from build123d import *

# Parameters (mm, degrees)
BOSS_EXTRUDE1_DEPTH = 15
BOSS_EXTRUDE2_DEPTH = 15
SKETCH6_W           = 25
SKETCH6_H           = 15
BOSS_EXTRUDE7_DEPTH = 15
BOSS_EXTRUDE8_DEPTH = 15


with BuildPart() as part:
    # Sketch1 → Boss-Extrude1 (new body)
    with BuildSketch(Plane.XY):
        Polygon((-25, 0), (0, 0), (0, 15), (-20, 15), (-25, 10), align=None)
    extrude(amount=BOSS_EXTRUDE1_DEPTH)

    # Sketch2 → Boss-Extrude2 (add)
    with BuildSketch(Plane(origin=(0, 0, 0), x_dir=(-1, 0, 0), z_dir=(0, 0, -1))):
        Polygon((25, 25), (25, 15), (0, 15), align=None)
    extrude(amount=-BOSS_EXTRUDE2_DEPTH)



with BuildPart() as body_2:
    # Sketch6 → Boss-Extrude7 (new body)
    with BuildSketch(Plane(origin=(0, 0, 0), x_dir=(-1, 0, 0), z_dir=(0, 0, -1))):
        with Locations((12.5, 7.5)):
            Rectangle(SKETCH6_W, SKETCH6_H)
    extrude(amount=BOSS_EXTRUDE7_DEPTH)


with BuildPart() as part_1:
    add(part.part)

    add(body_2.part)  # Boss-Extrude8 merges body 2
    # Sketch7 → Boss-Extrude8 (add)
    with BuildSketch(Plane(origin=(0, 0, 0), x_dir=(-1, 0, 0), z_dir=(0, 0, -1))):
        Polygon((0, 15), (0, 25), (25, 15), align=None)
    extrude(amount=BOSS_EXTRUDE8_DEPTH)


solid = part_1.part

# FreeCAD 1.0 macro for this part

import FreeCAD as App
import Part
import Sketcher
from FreeCAD import Vector


def add_polygon(sketch, points):
    """Adds a closed chain of lines whose ends are joined by coincident constraints."""
    first, n = sketch.GeometryCount, len(points)
    for a, b in zip(points, points[1:] + points[:1]):
        sketch.addGeometry(Part.LineSegment(App.Vector(*a, 0), App.Vector(*b, 0)), False)
    for i in range(n):
        sketch.addConstraint(Sketcher.Constraint("Coincident", first + i, 2, first + (i + 1) % n, 1))

doc = App.newDocument("Part")
params = doc.addObject("Spreadsheet::Sheet", "Params")
for row, (alias, value) in enumerate([
    ("sketch1_width", "25 mm"),
    ("sketch1_width2", "20 mm"),
    ("sketch1_height", "15 mm"),
    ("sketch1_height2", "10 mm"),
    ("pad1_length", "15 mm"),
    ("sketch2_width", "25 mm"),
    ("sketch2_height", "10 mm"),
    ("pad2_length", "15 mm"),
    ("sketch3_width", "25 mm"),
    ("sketch3_height", "15 mm"),
    ("pad3_length", "15 mm"),
    ("sketch4_width", "25 mm"),
    ("sketch4_height", "10 mm"),
    ("pad4_length", "15 mm"),
], start=1):
    params.set(f"A{row}", alias)
    params.set(f"B{row}", "=" + value)
    params.setAlias(f"B{row}", alias)

body = doc.addObject("PartDesign::Body", "Body")

# Sketch on XY plane
sketch1 = body.newObject("Sketcher::SketchObject", "Sketch")
sketch1.AttachmentSupport = (doc.getObject("XY_Plane"), [""])
sketch1.MapMode = "FlatFace"
add_polygon(sketch1, [(-25, 0), (0, 0), (0, 15), (-20, 15), (-25, 10)])  # lines 0-4
sketch1.addConstraint([
    Sketcher.Constraint("Horizontal", 0),
    Sketcher.Constraint("Vertical", 1),
    Sketcher.Constraint("Horizontal", 2),
    Sketcher.Constraint("Vertical", 4),
    Sketcher.Constraint("Coincident", 0, 2, -1, 1),
    Sketcher.Constraint("DistanceX", 0, 1, 0, 2, 25.0),
    Sketcher.Constraint("DistanceX", 2, 2, 2, 1, 20.0),
    Sketcher.Constraint("DistanceY", 1, 1, 1, 2, 15.0),
    Sketcher.Constraint("DistanceY", 4, 2, 4, 1, 10.0),
])
sketch1.setExpression("Constraints[10]", "Params.sketch1_width")
sketch1.setExpression("Constraints[11]", "Params.sketch1_width2")
sketch1.setExpression("Constraints[12]", "Params.sketch1_height")
sketch1.setExpression("Constraints[13]", "Params.sketch1_height2")
pad1 = body.newObject("PartDesign::Pad", "Pad")
pad1.Profile = sketch1
pad1.setExpression("Length", "Params.pad1_length")

# Sketch on XY plane
sketch2 = body.newObject("Sketcher::SketchObject", "Sketch001")
sketch2.AttachmentSupport = (doc.getObject("XY_Plane"), [""])
sketch2.MapMode = "FlatFace"
add_polygon(sketch2, [(-25, 15), (-25, 25), (0, 15)])  # lines 0-2
sketch2.addConstraint([
    Sketcher.Constraint("Vertical", 0),
    Sketcher.Constraint("Horizontal", 2),
    Sketcher.Constraint("PointOnObject", 1, 2, -2),
    Sketcher.Constraint("DistanceX", 2, 2, 2, 1, 25.0),
    Sketcher.Constraint("DistanceY", 0, 1, 0, 2, 10.0),
    Sketcher.Constraint("DistanceY", -1, 1, 0, 2, 25.0),
])
sketch2.setExpression("Constraints[6]", "Params.sketch2_width")
sketch2.setExpression("Constraints[7]", "Params.sketch2_height")
pad2 = body.newObject("PartDesign::Pad", "Pad001")
pad2.Profile = sketch2
pad2.setExpression("Length", "Params.pad2_length")
body2 = doc.addObject("PartDesign::Body", "Body001")

# Sketch on XY plane
sketch3 = body2.newObject("Sketcher::SketchObject", "Sketch002")
sketch3.AttachmentSupport = (doc.getObject("XY_Plane001"), [""])
sketch3.MapMode = "FlatFace"
add_polygon(sketch3, [(0, 15), (0, 0), (-25, 0), (-25, 15)])  # lines 0-3
sketch3.addConstraint([
    Sketcher.Constraint("Vertical", 0),
    Sketcher.Constraint("Horizontal", 1),
    Sketcher.Constraint("Vertical", 2),
    Sketcher.Constraint("Horizontal", 3),
    Sketcher.Constraint("Coincident", 0, 2, -1, 1),
    Sketcher.Constraint("DistanceX", 1, 2, 1, 1, 25.0),
    Sketcher.Constraint("DistanceY", 0, 2, 0, 1, 15.0),
])
sketch3.setExpression("Constraints[9]", "Params.sketch3_width")
sketch3.setExpression("Constraints[10]", "Params.sketch3_height")
pad3 = body2.newObject("PartDesign::Pad", "Pad002")
pad3.Profile = sketch3
pad3.setExpression("Length", "Params.pad3_length")
pad3.Reversed = True
doc.recompute()

boolean = body.newObject("PartDesign::Boolean", "Boolean")
boolean.Type = "Fuse"
boolean.addObjects([body2])

# Sketch on XY plane
sketch4 = body.newObject("Sketcher::SketchObject", "Sketch003")
sketch4.AttachmentSupport = (doc.getObject("XY_Plane"), [""])
sketch4.MapMode = "FlatFace"
add_polygon(sketch4, [(0, 25), (0, 15), (-25, 15)])  # lines 0-2
sketch4.addConstraint([
    Sketcher.Constraint("Vertical", 0),
    Sketcher.Constraint("Horizontal", 1),
    Sketcher.Constraint("PointOnObject", 0, 2, -2),
    Sketcher.Constraint("DistanceX", 1, 2, 1, 1, 25.0),
    Sketcher.Constraint("DistanceY", 0, 2, 0, 1, 10.0),
    Sketcher.Constraint("DistanceY", -1, 1, 0, 2, 15.0),
])
sketch4.setExpression("Constraints[6]", "Params.sketch4_width")
sketch4.setExpression("Constraints[7]", "Params.sketch4_height")
pad4 = body.newObject("PartDesign::Pad", "Pad003")
pad4.Profile = sketch4
pad4.setExpression("Length", "Params.pad4_length")
pad4.Reversed = True

doc.recompute()
